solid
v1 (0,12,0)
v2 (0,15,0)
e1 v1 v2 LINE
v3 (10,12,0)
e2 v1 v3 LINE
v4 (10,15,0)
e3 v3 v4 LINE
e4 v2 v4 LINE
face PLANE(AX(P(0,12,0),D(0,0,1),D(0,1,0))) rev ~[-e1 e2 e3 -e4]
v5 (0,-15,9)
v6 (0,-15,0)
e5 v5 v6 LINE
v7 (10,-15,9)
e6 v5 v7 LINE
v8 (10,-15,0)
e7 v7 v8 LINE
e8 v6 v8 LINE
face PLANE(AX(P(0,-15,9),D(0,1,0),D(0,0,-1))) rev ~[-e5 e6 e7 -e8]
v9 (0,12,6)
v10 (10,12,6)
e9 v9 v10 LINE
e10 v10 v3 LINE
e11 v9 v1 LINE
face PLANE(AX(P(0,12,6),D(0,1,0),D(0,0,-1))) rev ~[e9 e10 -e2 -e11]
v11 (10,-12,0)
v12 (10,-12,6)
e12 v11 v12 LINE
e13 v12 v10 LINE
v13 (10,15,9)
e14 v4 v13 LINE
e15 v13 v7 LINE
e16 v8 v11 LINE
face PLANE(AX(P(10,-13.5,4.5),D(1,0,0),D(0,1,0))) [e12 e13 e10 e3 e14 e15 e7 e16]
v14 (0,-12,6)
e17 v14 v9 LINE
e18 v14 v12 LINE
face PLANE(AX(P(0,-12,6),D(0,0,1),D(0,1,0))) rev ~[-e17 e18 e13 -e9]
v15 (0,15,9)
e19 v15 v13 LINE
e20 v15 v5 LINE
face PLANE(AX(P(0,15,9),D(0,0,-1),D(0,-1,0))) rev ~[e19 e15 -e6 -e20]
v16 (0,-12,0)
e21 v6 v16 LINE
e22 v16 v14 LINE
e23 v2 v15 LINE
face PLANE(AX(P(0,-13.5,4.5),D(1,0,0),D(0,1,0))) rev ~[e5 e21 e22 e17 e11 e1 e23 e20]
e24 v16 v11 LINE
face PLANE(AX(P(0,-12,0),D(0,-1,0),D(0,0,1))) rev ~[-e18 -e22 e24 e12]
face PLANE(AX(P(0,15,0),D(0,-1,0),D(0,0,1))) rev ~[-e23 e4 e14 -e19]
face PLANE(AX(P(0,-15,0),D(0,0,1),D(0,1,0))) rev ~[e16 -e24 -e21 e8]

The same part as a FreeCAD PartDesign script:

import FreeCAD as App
import Part
import Sketcher
from FreeCAD import Vector
Q = App.Units.Quantity


def add_polygon(sketch, points):
    """Adds a closed chain of lines whose ends are joined by coincident constraints."""
    first, n = sketch.GeometryCount, len(points)
    for a, b in zip(points, points[1:] + points[:1]):
        sketch.addGeometry(Part.LineSegment(App.Vector(*a, 0), App.Vector(*b, 0)), False)
    for i in range(n):
        sketch.addConstraint(Sketcher.Constraint("Coincident", first + i, 2, first + (i + 1) % n, 1))

doc = App.newDocument("Part")
body = doc.addObject("PartDesign::Body", "Body")

# Sketch on YZ plane
sketch1 = doc.addObject("Sketcher::SketchObject", "Sketch")
body.addObject(sketch1)
sketch1.AttachmentSupport = (doc.YZ_Plane, [""])
sketch1.MapMode = "FlatFace"
add_polygon(sketch1, [(-15, 9), (-15, 0), (-12, 0), (-12, 6), (12, 6), (12, 0), (15, 0), (15, 9)])  # lines 0-7
sketch1.addConstraint(Sketcher.Constraint("Vertical", 0))
sketch1.addConstraint(Sketcher.Constraint("Horizontal", 1))
sketch1.addConstraint(Sketcher.Constraint("Vertical", 2))
sketch1.addConstraint(Sketcher.Constraint("Horizontal", 3))
sketch1.addConstraint(Sketcher.Constraint("Vertical", 4))
sketch1.addConstraint(Sketcher.Constraint("Horizontal", 5))
sketch1.addConstraint(Sketcher.Constraint("Vertical", 6))
sketch1.addConstraint(Sketcher.Constraint("Horizontal", 7))
sketch1.addConstraint(Sketcher.Constraint("Symmetric", 1, 2, 4, 2, -1, 1))
sketch1.addConstraint(Sketcher.Constraint("Symmetric", 0, 2, 5, 2, -2))
sketch1.addConstraint(Sketcher.Constraint("DistanceX", 1, 1, 1, 2, Q("3 mm")))
sketch1.addConstraint(Sketcher.Constraint("DistanceX", 3, 1, 3, 2, Q("24 mm")))
sketch1.addConstraint(Sketcher.Constraint("DistanceY", 0, 2, 0, 1, Q("9 mm")))
sketch1.addConstraint(Sketcher.Constraint("DistanceY", 2, 1, 2, 2, Q("6 mm")))
pad1 = doc.addObject("PartDesign::Pad", "Pad")
body.addObject(pad1)
pad1.Profile = sketch1
pad1.Length = 10

doc.recompute()
